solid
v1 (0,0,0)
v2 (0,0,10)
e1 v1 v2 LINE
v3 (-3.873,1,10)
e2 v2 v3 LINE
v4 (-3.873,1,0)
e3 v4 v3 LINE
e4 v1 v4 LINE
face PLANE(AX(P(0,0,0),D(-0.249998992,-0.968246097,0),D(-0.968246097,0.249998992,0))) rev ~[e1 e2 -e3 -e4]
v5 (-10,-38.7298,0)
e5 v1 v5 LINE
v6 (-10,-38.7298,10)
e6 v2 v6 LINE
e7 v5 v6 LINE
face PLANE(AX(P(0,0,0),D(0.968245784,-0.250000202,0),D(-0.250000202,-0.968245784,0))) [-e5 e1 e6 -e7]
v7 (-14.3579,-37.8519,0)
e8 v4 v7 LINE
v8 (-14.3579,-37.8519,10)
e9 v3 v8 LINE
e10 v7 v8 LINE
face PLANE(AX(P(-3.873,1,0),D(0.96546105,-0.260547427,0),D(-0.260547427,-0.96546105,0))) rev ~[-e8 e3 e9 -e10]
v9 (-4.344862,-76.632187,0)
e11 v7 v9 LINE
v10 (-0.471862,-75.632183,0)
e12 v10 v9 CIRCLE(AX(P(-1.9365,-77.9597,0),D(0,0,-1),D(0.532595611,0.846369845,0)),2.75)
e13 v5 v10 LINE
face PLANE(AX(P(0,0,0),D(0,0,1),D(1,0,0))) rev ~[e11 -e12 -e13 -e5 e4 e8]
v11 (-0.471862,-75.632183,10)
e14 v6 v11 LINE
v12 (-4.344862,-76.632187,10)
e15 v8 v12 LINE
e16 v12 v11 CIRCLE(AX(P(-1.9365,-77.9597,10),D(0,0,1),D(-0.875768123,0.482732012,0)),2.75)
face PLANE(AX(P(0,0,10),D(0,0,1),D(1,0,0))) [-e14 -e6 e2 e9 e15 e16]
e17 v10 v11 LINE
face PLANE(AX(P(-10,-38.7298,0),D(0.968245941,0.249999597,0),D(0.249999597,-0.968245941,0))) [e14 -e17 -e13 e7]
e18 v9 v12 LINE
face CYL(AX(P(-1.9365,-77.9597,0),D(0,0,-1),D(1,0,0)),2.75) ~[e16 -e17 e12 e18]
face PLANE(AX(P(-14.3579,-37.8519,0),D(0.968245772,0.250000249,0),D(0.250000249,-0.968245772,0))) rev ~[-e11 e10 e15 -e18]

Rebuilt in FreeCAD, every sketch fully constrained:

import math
import FreeCAD as App
import Part
import Sketcher
from FreeCAD import Vector

doc = App.newDocument("Part")
params = doc.addObject("Spreadsheet::Sheet", "Params")
for row, (alias, value) in enumerate([
    ("sketch1_radius", "2.75 mm"),
    ("sketch1_length", "40 mm"),
    ("sketch1_length2", "4 mm"),
    ("pad1_length", "10 mm"),
], start=1):
    params.set(f"A{row}", alias)
    params.set(f"B{row}", "=" + value)
    params.setAlias(f"B{row}", alias)

body = doc.addObject("PartDesign::Body", "Body")

sketch1 = body.newObject("Sketcher::SketchObject", "Sketch")
sketch1.AttachmentSupport = (doc.getObject("XY_Plane"), [""])
sketch1.MapMode = "FlatFace"
sketch1.addGeometry([
    Part.LineSegment(Vector(-10, -38.7, 0), Vector(0, 0, 0)),
    Part.LineSegment(Vector(0, 0, 0), Vector(-3.9, 1, 0)),
    Part.LineSegment(Vector(-3.9, 1, 0), Vector(-14.4, -37.9, 0)),
    Part.LineSegment(Vector(-14.4, -37.9, 0), Vector(-4.3, -76.6, 0)),
    Part.ArcOfCircle(Part.Circle(Vector(-1.9, -78, 0), Vector(0, 0, 1), 2.8), math.radians(151), math.radians(418)),
    Part.LineSegment(Vector(-0.5, -75.6, 0), Vector(-10, -38.7, 0)),
], False)
sketch1.addConstraint([
    Sketcher.Constraint("Coincident", 0, 2, 1, 1),
    Sketcher.Constraint("Coincident", 1, 2, 2, 1),
    Sketcher.Constraint("Coincident", 2, 2, 3, 1),
    Sketcher.Constraint("Coincident", 3, 2, 4, 1),
    Sketcher.Constraint("Coincident", 4, 2, 5, 1),
    Sketcher.Constraint("Coincident", 5, 2, 0, 1),
    Sketcher.Constraint("Coincident", 0, 2, -1, 1),
    Sketcher.Constraint("Perpendicular", 0, 1),
    Sketcher.Constraint("Parallel", 3, 5),
    Sketcher.Constraint("Radius", 4, 2.75),
    Sketcher.Constraint("Distance", 0, 40.0),
    Sketcher.Constraint("Distance", 1, 4.0),
    Sketcher.Constraint("DistanceY", -1, 1, 1, 2, 1.0),
    Sketcher.Constraint("DistanceY", 3, 2, 4, 2, 1.0),
    Sketcher.Constraint("DistanceY", 4, 3, 5, 2, 39.23),
    Sketcher.Constraint("Distance", 3, 40.052),
    Sketcher.Constraint("DistanceX", 2, 2, -1, 1, 14.358),
    Sketcher.Constraint("DistanceY", 2, 2, -1, 1, 37.852),
])
sketch1.setExpression("Constraints[9]", "Params.sketch1_radius")
sketch1.setExpression("Constraints[10]", "Params.sketch1_length")
sketch1.setExpression("Constraints[11]", "Params.sketch1_length2")
pad1 = body.newObject("PartDesign::Pad", "Pad")
pad1.Profile = sketch1
pad1.setExpression("Length", "Params.pad1_length")

doc.recompute()
